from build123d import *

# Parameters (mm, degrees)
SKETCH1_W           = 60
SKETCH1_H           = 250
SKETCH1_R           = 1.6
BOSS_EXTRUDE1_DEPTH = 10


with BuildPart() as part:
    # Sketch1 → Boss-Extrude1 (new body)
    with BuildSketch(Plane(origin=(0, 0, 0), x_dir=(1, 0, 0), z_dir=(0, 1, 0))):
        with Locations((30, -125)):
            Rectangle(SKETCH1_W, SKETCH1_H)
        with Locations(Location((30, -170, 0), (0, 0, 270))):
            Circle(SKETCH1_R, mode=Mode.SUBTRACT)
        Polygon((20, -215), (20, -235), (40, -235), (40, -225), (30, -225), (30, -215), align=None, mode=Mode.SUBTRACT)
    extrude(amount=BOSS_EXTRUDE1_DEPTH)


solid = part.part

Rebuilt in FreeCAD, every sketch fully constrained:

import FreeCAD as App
import Part
import Sketcher
from FreeCAD import Vector


def add_polygon(sketch, points):
    """Adds a closed chain of lines whose ends are joined by coincident constraints."""
    first, n = sketch.GeometryCount, len(points)
    for a, b in zip(points, points[1:] + points[:1]):
        sketch.addGeometry(Part.LineSegment(App.Vector(*a, 0), App.Vector(*b, 0)), False)
    for i in range(n):
        sketch.addConstraint(Sketcher.Constraint("Coincident", first + i, 2, first + (i + 1) % n, 1))

doc = App.newDocument("Part")
body = doc.addObject("PartDesign::Body", "Body")

# Sketch on XZ plane
sketch1 = doc.addObject("Sketcher::SketchObject", "Sketch")
body.addObject(sketch1)
sketch1.AttachmentSupport = (doc.XZ_Plane, [""])
sketch1.MapMode = "FlatFace"
add_polygon(sketch1, [(0, 0), (0, 250), (60, 250), (60, 0)])  # lines 0-3
add_polygon(sketch1, [(20, 235), (20, 215), (30, 215), (30, 225), (40, 225), (40, 235)])  # lines 4-9
sketch1.addGeometry(Part.Circle(Vector(30, 170, 0), Vector(0, 0, 1), 1.6), False)  # 10
sketch1.addConstraint([
    Sketcher.Constraint("Vertical", 0),
    Sketcher.Constraint("Horizontal", 1),
    Sketcher.Constraint("Vertical", 2),
    Sketcher.Constraint("Horizontal", 3),
    Sketcher.Constraint("Vertical", 4),
    Sketcher.Constraint("Horizontal", 5),
    Sketcher.Constraint("Vertical", 6),
    Sketcher.Constraint("Horizontal", 7),
    Sketcher.Constraint("Vertical", 8),
    Sketcher.Constraint("Horizontal", 9),
    Sketcher.Constraint("Coincident", 3, 2, -1, 1),
    Sketcher.Constraint("Vertical", 10, 3, 5, 2),
    Sketcher.Constraint("Equal", 5, 7),
    Sketcher.Constraint("Equal", 9, 4),
    Sketcher.Constraint("Equal", 7, 6),
    Sketcher.Constraint("Diameter", 10, 3.2),
    Sketcher.Constraint("DistanceX", 1, 1, 1, 2, 60.0),
    Sketcher.Constraint("DistanceX", 5, 1, 5, 2, 10.0),
    Sketcher.Constraint("DistanceY", 0, 1, 0, 2, 250.0),
    Sketcher.Constraint("DistanceX", -1, 1, 10, 3, 30.0),
    Sketcher.Constraint("DistanceY", -1, 1, 10, 3, 170.0),
    Sketcher.Constraint("DistanceY", -1, 1, 4, 2, 215.0),
])
pad1 = doc.addObject("PartDesign::Pad", "Pad")
body.addObject(pad1)
pad1.Profile = sketch1
pad1.Length = 10
pad1.Reversed = True

doc.recompute()
